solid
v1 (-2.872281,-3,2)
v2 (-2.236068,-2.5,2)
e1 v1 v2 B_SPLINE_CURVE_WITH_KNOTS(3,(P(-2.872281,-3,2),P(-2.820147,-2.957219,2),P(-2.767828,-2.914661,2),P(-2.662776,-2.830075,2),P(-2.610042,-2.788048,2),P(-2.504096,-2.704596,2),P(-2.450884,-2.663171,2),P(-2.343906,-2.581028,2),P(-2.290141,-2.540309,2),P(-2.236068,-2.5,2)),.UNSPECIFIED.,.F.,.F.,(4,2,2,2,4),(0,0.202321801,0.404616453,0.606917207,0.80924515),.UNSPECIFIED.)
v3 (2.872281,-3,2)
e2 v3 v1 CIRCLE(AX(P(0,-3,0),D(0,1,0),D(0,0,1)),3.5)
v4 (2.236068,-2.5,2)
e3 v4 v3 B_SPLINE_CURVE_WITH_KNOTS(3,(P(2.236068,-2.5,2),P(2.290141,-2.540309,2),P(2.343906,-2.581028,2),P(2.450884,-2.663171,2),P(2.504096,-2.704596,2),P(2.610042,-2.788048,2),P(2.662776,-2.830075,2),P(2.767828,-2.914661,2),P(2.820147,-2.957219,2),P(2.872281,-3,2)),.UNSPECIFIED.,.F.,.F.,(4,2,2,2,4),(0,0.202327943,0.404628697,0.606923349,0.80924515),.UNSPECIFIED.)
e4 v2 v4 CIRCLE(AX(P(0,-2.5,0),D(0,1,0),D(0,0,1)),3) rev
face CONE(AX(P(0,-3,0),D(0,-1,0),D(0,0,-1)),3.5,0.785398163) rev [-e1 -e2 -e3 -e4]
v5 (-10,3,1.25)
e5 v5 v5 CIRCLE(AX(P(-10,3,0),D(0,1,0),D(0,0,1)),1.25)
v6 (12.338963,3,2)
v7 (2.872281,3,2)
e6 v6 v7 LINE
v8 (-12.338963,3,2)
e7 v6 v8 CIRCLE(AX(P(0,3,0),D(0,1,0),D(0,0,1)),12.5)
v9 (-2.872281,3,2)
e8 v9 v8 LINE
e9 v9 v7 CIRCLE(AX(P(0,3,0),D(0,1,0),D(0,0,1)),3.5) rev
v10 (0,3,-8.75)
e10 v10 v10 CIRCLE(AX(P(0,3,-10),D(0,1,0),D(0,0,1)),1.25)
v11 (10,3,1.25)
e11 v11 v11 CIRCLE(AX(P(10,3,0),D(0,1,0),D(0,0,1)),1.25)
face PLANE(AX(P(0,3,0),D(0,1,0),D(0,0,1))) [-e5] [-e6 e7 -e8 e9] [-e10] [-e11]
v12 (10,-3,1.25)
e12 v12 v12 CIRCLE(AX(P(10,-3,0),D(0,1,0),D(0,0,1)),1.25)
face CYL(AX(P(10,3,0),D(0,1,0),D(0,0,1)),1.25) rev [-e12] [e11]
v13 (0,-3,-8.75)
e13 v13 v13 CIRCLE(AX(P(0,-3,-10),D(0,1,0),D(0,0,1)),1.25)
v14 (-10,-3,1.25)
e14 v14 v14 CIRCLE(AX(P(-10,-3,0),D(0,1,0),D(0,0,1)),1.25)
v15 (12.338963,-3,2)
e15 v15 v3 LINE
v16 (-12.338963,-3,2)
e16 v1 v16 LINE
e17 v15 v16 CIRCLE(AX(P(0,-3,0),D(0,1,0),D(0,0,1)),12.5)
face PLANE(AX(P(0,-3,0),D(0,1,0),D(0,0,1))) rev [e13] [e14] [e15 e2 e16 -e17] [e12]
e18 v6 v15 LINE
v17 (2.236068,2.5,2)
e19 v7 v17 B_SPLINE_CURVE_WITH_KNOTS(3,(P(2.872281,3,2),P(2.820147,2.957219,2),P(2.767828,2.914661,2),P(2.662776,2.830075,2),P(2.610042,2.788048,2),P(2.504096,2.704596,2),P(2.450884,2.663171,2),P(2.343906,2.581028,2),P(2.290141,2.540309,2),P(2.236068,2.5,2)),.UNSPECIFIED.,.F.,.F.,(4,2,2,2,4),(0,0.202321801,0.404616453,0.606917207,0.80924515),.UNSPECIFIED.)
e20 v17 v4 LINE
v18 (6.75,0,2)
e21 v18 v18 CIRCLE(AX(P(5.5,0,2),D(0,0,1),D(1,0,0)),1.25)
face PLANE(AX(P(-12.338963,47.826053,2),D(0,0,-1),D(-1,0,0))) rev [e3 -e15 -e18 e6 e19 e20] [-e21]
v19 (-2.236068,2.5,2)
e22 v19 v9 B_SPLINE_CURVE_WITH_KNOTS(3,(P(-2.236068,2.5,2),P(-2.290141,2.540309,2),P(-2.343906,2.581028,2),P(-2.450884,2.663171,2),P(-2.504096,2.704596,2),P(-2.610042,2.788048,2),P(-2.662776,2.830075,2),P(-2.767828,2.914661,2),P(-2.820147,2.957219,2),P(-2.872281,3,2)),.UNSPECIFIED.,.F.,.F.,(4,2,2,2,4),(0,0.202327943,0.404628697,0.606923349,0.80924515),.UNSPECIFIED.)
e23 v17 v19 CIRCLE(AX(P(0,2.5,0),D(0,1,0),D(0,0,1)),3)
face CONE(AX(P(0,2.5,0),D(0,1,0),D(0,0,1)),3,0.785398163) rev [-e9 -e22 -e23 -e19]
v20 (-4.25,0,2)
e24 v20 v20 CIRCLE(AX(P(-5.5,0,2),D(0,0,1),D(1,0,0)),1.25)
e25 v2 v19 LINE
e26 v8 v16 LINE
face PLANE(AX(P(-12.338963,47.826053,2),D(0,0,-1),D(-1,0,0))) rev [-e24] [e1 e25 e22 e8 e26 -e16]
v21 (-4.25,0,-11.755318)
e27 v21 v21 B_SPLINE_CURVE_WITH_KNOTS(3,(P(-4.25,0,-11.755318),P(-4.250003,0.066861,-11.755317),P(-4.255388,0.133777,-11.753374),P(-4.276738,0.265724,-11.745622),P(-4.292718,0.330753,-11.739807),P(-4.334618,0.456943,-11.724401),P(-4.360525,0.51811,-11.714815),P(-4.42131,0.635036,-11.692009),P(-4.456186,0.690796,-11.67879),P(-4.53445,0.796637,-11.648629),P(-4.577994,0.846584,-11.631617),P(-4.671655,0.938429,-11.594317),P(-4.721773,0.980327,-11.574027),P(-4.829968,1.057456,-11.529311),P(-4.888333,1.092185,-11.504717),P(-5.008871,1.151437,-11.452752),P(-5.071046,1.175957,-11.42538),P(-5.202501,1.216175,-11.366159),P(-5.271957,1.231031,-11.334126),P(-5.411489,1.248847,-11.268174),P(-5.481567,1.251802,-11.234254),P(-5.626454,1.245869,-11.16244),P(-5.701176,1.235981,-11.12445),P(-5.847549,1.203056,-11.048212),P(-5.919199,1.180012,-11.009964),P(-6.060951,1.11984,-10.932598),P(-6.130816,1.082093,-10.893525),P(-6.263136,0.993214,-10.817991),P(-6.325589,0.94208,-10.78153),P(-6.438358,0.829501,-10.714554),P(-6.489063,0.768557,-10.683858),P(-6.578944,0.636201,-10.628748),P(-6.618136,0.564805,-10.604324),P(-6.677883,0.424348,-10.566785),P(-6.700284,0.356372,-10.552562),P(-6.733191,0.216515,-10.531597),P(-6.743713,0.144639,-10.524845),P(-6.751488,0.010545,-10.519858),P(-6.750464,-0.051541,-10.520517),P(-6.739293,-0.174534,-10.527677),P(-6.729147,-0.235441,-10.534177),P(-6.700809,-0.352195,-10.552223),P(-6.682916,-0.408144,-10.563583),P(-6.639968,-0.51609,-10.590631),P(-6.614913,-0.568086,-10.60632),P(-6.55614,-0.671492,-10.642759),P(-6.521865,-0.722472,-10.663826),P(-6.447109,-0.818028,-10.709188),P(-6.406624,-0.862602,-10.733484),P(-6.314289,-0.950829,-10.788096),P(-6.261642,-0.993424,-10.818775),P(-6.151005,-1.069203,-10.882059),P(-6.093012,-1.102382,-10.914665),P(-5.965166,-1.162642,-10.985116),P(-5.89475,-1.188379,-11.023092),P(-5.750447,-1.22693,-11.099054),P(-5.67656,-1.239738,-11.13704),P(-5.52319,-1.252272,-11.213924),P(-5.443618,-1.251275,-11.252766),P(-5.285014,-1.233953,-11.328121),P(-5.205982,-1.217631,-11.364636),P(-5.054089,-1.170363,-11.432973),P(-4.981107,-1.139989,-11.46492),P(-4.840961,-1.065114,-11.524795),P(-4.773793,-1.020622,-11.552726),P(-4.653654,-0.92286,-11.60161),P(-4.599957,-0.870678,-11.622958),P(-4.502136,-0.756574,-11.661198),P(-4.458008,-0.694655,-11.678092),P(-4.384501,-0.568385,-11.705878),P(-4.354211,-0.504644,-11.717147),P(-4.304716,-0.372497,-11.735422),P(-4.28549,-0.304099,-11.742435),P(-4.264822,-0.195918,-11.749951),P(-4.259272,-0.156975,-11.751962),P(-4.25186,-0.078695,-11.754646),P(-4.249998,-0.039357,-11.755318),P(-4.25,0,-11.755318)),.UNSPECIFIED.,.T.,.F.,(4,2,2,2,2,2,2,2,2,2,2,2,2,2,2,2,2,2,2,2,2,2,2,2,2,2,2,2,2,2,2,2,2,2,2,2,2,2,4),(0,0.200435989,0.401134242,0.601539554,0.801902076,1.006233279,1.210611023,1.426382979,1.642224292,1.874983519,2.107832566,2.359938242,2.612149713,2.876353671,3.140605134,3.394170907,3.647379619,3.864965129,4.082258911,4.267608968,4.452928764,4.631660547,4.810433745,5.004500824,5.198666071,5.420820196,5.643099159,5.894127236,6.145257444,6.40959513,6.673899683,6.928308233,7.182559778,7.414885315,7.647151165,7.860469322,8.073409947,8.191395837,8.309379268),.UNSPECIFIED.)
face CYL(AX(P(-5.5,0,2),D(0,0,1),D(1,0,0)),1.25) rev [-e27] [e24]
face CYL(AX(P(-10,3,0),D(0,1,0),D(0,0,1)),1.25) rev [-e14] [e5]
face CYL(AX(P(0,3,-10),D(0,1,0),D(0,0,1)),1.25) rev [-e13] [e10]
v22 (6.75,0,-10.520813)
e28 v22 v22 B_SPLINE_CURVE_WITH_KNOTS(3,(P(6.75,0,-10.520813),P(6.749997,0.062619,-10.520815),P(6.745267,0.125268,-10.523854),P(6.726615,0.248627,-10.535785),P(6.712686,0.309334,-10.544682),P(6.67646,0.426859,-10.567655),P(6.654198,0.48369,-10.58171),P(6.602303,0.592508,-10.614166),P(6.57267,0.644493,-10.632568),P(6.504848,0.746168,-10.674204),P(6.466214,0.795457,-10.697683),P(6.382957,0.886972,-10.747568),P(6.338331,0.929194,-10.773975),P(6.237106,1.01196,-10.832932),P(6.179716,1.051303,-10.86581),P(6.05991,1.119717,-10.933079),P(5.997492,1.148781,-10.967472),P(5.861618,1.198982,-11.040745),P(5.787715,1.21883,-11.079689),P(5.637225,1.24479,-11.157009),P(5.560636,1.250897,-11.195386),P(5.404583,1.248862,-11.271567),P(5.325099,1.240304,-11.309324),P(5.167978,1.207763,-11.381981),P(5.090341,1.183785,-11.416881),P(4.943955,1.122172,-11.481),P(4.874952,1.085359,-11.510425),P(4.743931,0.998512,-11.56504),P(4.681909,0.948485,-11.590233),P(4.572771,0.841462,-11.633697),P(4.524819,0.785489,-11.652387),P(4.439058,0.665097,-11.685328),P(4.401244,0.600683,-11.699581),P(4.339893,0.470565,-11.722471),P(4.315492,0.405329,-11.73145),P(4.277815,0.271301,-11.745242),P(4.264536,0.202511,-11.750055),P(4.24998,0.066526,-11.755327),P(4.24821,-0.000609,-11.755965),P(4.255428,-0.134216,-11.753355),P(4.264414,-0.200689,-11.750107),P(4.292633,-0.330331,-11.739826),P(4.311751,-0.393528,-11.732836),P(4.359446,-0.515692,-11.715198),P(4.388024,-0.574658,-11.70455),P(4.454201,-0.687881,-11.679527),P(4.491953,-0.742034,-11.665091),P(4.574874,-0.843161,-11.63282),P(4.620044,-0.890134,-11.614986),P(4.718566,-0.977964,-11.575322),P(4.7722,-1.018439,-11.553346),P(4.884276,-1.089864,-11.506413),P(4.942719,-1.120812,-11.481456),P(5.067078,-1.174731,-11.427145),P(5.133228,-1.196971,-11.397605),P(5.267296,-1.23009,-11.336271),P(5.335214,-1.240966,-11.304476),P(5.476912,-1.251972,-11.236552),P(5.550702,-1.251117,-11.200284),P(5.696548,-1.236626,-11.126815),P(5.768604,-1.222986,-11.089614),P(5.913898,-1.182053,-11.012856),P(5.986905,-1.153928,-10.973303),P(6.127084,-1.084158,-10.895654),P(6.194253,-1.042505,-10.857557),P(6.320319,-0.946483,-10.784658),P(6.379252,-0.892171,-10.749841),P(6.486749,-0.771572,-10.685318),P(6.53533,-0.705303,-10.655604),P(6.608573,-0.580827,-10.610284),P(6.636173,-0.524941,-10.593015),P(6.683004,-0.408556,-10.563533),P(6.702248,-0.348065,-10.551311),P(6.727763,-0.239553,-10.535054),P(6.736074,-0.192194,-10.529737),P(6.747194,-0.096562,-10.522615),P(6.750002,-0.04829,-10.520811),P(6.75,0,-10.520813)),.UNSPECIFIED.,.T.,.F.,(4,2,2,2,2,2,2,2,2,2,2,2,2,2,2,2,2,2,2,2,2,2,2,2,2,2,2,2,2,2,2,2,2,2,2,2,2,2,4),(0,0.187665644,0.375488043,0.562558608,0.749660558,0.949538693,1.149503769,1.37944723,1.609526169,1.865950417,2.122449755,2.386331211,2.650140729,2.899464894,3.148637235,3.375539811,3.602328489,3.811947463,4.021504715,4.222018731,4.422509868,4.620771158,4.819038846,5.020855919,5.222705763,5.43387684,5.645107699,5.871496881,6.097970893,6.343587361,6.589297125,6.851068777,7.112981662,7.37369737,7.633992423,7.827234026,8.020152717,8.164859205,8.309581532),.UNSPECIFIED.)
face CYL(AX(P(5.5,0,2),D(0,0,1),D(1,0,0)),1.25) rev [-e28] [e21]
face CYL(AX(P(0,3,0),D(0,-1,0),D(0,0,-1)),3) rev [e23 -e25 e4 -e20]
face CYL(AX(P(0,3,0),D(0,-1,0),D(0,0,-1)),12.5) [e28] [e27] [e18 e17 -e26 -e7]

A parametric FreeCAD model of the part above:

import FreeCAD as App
import Part
import Sketcher
from FreeCAD import Vector
Q = App.Units.Quantity


def edges_at(feature, points):
    """Names of the edges that pass closest to the given points."""
    edges = feature.Shape.Edges
    near = lambda p: min(range(len(edges)), key=lambda i: edges[i].distToShape(Part.Vertex(*p))[0])
    return sorted({f"Edge{near(p) + 1}" for p in points})

doc = App.newDocument("Part")
body = doc.addObject("PartDesign::Body", "Body")

sketch1 = doc.addObject("Sketcher::SketchObject", "Sketch")
body.addObject(sketch1)
sketch1.AttachmentSupport = (doc.XZ_Plane, [""])
sketch1.MapMode = "FlatFace"
sketch1.addGeometry([
    Part.Circle(Vector(0, 0, 0), Vector(0, 0, 1), 12.5),
    Part.Circle(Vector(0, 0, 0), Vector(0, 0, 1), 3),
], False)
sketch1.addConstraint([
    Sketcher.Constraint("Coincident", 0, 3, -1, 1),
    Sketcher.Constraint("Coincident", 1, 3, -1, 1),
    Sketcher.Constraint("Diameter", 0, Q("25 mm")),
    Sketcher.Constraint("Diameter", 1, Q("6 mm")),
])
pad1 = doc.addObject("PartDesign::Pad", "Pad")
body.addObject(pad1)
pad1.Profile = sketch1
pad1.Length = 6
pad1.Midplane = True

sketch2 = doc.addObject("Sketcher::SketchObject", "Sketch001")
body.addObject(sketch2)
sketch2.AttachmentSupport = (doc.XZ_Plane, [""])
sketch2.MapMode = "FlatFace"
sketch2.AttachmentOffset = App.Placement(Vector(0, 0, -3), App.Rotation())
sketch2.addGeometry([
    Part.Circle(Vector(0, -10, 0), Vector(0, 0, 1), 1.2),
    Part.Circle(Vector(10, 0, 0), Vector(0, 0, 1), 1.2),
    Part.Circle(Vector(0, 10, 0), Vector(0, 0, 1), 1.2),
    Part.Circle(Vector(-10, 0, 0), Vector(0, 0, 1), 1.2),
], False)
sketch2.addConstraint([
    Sketcher.Constraint("Equal", 0, 1),
    Sketcher.Constraint("Equal", 1, 2),
    Sketcher.Constraint("Equal", 2, 3),
    Sketcher.Constraint("Symmetric", 0, 3, 2, 3, -1, 1),
    Sketcher.Constraint("Symmetric", 1, 3, 3, 3, -1, 1),
    Sketcher.Constraint("PointOnObject", 0, 3, -2),
    Sketcher.Constraint("PointOnObject", 1, 3, -1),
    Sketcher.Constraint("Diameter", 0, Q("2.5 mm")),
    Sketcher.Constraint("DistanceY", 0, 3, -1, 1, Q("10 mm")),
    Sketcher.Constraint("DistanceX", -1, 1, 1, 3, Q("10 mm")),
])
doc.recompute()
hole = doc.addObject("PartDesign::Hole", "Hole")
body.addObject(hole)
hole.Profile = sketch2
hole.ThreadType = "None"
hole.Diameter = 2.5
hole.DepthType = "ThroughAll"
hole.Reversed = True

sketch3 = doc.addObject("Sketcher::SketchObject", "Sketch002")
body.addObject(sketch3)
sketch3.AttachmentSupport = (doc.XZ_Plane, [""])
sketch3.MapMode = "FlatFace"
sketch3.AttachmentOffset = App.Placement(Vector(0, 0, -3), App.Rotation())
sketch3.addGeometry([
    Part.LineSegment(Vector(80, 2, 0), Vector(-80, 2, 0)),
    Part.LineSegment(Vector(-80, 2, 0), Vector(-80, 137, 0)),
    Part.LineSegment(Vector(-80, 137, 0), Vector(80, 137, 0)),
    Part.LineSegment(Vector(80, 137, 0), Vector(80, 2, 0)),
], False)
sketch3.addConstraint([
    Sketcher.Constraint("Coincident", 0, 2, 1, 1),
    Sketcher.Constraint("Coincident", 1, 2, 2, 1),
    Sketcher.Constraint("Coincident", 2, 2, 3, 1),
    Sketcher.Constraint("Coincident", 3, 2, 0, 1),
    Sketcher.Constraint("Horizontal", 0),
    Sketcher.Constraint("Vertical", 1),
    Sketcher.Constraint("Horizontal", 2),
    Sketcher.Constraint("Vertical", 3),
    Sketcher.Constraint("DistanceY", -1, 1, 0, 2, Q("2 mm")),
    Sketcher.Constraint("DistanceX", 0, 2, 0, 1, Q("159.723938 mm")),
    Sketcher.Constraint("DistanceY", 1, 1, 1, 2, Q("135.046013 mm")),
    Sketcher.Constraint("DistanceX", 0, 2, -1, 1, Q("79.861969 mm")),
])
pocket1 = doc.addObject("PartDesign::Pocket", "Pocket")
body.addObject(pocket1)
pocket1.Profile = sketch3
pocket1.Type = "ThroughAll"
pocket1.Midplane = True

sketch4 = doc.addObject("Sketcher::SketchObject", "Sketch003")
body.addObject(sketch4)
sketch4.AttachmentSupport = (doc.XY_Plane, [""])
sketch4.MapMode = "FlatFace"
sketch4.AttachmentOffset = App.Placement(Vector(0, 0, 2), App.Rotation())
sketch4.addGeometry([
    Part.Circle(Vector(-5.5, 0, 0), Vector(0, 0, 1), 1.2),
    Part.Circle(Vector(5.5, 0, 0), Vector(0, 0, 1), 1.2),
], False)
sketch4.addConstraint([
    Sketcher.Constraint("Equal", 0, 1),
    Sketcher.Constraint("Symmetric", 0, 3, 1, 3, -1, 1),
    Sketcher.Constraint("PointOnObject", 0, 3, -1),
    Sketcher.Constraint("Diameter", 0, Q("2.5 mm")),
    Sketcher.Constraint("DistanceX", 0, 3, 1, 3, Q("11 mm")),
])
doc.recompute()
hole2 = doc.addObject("PartDesign::Hole", "Hole001")
body.addObject(hole2)
hole2.Profile = sketch4
hole2.ThreadType = "None"
hole2.Diameter = 2.5
hole2.DepthType = "ThroughAll"
doc.recompute()

chamfer = doc.addObject("PartDesign::Chamfer", "Chamfer")
body.addObject(chamfer)
chamfer.Base = (hole2, edges_at(hole2, [(0, -3, -3), (0, 3, -3)]))
chamfer.Size = 0.5

doc.recompute()
